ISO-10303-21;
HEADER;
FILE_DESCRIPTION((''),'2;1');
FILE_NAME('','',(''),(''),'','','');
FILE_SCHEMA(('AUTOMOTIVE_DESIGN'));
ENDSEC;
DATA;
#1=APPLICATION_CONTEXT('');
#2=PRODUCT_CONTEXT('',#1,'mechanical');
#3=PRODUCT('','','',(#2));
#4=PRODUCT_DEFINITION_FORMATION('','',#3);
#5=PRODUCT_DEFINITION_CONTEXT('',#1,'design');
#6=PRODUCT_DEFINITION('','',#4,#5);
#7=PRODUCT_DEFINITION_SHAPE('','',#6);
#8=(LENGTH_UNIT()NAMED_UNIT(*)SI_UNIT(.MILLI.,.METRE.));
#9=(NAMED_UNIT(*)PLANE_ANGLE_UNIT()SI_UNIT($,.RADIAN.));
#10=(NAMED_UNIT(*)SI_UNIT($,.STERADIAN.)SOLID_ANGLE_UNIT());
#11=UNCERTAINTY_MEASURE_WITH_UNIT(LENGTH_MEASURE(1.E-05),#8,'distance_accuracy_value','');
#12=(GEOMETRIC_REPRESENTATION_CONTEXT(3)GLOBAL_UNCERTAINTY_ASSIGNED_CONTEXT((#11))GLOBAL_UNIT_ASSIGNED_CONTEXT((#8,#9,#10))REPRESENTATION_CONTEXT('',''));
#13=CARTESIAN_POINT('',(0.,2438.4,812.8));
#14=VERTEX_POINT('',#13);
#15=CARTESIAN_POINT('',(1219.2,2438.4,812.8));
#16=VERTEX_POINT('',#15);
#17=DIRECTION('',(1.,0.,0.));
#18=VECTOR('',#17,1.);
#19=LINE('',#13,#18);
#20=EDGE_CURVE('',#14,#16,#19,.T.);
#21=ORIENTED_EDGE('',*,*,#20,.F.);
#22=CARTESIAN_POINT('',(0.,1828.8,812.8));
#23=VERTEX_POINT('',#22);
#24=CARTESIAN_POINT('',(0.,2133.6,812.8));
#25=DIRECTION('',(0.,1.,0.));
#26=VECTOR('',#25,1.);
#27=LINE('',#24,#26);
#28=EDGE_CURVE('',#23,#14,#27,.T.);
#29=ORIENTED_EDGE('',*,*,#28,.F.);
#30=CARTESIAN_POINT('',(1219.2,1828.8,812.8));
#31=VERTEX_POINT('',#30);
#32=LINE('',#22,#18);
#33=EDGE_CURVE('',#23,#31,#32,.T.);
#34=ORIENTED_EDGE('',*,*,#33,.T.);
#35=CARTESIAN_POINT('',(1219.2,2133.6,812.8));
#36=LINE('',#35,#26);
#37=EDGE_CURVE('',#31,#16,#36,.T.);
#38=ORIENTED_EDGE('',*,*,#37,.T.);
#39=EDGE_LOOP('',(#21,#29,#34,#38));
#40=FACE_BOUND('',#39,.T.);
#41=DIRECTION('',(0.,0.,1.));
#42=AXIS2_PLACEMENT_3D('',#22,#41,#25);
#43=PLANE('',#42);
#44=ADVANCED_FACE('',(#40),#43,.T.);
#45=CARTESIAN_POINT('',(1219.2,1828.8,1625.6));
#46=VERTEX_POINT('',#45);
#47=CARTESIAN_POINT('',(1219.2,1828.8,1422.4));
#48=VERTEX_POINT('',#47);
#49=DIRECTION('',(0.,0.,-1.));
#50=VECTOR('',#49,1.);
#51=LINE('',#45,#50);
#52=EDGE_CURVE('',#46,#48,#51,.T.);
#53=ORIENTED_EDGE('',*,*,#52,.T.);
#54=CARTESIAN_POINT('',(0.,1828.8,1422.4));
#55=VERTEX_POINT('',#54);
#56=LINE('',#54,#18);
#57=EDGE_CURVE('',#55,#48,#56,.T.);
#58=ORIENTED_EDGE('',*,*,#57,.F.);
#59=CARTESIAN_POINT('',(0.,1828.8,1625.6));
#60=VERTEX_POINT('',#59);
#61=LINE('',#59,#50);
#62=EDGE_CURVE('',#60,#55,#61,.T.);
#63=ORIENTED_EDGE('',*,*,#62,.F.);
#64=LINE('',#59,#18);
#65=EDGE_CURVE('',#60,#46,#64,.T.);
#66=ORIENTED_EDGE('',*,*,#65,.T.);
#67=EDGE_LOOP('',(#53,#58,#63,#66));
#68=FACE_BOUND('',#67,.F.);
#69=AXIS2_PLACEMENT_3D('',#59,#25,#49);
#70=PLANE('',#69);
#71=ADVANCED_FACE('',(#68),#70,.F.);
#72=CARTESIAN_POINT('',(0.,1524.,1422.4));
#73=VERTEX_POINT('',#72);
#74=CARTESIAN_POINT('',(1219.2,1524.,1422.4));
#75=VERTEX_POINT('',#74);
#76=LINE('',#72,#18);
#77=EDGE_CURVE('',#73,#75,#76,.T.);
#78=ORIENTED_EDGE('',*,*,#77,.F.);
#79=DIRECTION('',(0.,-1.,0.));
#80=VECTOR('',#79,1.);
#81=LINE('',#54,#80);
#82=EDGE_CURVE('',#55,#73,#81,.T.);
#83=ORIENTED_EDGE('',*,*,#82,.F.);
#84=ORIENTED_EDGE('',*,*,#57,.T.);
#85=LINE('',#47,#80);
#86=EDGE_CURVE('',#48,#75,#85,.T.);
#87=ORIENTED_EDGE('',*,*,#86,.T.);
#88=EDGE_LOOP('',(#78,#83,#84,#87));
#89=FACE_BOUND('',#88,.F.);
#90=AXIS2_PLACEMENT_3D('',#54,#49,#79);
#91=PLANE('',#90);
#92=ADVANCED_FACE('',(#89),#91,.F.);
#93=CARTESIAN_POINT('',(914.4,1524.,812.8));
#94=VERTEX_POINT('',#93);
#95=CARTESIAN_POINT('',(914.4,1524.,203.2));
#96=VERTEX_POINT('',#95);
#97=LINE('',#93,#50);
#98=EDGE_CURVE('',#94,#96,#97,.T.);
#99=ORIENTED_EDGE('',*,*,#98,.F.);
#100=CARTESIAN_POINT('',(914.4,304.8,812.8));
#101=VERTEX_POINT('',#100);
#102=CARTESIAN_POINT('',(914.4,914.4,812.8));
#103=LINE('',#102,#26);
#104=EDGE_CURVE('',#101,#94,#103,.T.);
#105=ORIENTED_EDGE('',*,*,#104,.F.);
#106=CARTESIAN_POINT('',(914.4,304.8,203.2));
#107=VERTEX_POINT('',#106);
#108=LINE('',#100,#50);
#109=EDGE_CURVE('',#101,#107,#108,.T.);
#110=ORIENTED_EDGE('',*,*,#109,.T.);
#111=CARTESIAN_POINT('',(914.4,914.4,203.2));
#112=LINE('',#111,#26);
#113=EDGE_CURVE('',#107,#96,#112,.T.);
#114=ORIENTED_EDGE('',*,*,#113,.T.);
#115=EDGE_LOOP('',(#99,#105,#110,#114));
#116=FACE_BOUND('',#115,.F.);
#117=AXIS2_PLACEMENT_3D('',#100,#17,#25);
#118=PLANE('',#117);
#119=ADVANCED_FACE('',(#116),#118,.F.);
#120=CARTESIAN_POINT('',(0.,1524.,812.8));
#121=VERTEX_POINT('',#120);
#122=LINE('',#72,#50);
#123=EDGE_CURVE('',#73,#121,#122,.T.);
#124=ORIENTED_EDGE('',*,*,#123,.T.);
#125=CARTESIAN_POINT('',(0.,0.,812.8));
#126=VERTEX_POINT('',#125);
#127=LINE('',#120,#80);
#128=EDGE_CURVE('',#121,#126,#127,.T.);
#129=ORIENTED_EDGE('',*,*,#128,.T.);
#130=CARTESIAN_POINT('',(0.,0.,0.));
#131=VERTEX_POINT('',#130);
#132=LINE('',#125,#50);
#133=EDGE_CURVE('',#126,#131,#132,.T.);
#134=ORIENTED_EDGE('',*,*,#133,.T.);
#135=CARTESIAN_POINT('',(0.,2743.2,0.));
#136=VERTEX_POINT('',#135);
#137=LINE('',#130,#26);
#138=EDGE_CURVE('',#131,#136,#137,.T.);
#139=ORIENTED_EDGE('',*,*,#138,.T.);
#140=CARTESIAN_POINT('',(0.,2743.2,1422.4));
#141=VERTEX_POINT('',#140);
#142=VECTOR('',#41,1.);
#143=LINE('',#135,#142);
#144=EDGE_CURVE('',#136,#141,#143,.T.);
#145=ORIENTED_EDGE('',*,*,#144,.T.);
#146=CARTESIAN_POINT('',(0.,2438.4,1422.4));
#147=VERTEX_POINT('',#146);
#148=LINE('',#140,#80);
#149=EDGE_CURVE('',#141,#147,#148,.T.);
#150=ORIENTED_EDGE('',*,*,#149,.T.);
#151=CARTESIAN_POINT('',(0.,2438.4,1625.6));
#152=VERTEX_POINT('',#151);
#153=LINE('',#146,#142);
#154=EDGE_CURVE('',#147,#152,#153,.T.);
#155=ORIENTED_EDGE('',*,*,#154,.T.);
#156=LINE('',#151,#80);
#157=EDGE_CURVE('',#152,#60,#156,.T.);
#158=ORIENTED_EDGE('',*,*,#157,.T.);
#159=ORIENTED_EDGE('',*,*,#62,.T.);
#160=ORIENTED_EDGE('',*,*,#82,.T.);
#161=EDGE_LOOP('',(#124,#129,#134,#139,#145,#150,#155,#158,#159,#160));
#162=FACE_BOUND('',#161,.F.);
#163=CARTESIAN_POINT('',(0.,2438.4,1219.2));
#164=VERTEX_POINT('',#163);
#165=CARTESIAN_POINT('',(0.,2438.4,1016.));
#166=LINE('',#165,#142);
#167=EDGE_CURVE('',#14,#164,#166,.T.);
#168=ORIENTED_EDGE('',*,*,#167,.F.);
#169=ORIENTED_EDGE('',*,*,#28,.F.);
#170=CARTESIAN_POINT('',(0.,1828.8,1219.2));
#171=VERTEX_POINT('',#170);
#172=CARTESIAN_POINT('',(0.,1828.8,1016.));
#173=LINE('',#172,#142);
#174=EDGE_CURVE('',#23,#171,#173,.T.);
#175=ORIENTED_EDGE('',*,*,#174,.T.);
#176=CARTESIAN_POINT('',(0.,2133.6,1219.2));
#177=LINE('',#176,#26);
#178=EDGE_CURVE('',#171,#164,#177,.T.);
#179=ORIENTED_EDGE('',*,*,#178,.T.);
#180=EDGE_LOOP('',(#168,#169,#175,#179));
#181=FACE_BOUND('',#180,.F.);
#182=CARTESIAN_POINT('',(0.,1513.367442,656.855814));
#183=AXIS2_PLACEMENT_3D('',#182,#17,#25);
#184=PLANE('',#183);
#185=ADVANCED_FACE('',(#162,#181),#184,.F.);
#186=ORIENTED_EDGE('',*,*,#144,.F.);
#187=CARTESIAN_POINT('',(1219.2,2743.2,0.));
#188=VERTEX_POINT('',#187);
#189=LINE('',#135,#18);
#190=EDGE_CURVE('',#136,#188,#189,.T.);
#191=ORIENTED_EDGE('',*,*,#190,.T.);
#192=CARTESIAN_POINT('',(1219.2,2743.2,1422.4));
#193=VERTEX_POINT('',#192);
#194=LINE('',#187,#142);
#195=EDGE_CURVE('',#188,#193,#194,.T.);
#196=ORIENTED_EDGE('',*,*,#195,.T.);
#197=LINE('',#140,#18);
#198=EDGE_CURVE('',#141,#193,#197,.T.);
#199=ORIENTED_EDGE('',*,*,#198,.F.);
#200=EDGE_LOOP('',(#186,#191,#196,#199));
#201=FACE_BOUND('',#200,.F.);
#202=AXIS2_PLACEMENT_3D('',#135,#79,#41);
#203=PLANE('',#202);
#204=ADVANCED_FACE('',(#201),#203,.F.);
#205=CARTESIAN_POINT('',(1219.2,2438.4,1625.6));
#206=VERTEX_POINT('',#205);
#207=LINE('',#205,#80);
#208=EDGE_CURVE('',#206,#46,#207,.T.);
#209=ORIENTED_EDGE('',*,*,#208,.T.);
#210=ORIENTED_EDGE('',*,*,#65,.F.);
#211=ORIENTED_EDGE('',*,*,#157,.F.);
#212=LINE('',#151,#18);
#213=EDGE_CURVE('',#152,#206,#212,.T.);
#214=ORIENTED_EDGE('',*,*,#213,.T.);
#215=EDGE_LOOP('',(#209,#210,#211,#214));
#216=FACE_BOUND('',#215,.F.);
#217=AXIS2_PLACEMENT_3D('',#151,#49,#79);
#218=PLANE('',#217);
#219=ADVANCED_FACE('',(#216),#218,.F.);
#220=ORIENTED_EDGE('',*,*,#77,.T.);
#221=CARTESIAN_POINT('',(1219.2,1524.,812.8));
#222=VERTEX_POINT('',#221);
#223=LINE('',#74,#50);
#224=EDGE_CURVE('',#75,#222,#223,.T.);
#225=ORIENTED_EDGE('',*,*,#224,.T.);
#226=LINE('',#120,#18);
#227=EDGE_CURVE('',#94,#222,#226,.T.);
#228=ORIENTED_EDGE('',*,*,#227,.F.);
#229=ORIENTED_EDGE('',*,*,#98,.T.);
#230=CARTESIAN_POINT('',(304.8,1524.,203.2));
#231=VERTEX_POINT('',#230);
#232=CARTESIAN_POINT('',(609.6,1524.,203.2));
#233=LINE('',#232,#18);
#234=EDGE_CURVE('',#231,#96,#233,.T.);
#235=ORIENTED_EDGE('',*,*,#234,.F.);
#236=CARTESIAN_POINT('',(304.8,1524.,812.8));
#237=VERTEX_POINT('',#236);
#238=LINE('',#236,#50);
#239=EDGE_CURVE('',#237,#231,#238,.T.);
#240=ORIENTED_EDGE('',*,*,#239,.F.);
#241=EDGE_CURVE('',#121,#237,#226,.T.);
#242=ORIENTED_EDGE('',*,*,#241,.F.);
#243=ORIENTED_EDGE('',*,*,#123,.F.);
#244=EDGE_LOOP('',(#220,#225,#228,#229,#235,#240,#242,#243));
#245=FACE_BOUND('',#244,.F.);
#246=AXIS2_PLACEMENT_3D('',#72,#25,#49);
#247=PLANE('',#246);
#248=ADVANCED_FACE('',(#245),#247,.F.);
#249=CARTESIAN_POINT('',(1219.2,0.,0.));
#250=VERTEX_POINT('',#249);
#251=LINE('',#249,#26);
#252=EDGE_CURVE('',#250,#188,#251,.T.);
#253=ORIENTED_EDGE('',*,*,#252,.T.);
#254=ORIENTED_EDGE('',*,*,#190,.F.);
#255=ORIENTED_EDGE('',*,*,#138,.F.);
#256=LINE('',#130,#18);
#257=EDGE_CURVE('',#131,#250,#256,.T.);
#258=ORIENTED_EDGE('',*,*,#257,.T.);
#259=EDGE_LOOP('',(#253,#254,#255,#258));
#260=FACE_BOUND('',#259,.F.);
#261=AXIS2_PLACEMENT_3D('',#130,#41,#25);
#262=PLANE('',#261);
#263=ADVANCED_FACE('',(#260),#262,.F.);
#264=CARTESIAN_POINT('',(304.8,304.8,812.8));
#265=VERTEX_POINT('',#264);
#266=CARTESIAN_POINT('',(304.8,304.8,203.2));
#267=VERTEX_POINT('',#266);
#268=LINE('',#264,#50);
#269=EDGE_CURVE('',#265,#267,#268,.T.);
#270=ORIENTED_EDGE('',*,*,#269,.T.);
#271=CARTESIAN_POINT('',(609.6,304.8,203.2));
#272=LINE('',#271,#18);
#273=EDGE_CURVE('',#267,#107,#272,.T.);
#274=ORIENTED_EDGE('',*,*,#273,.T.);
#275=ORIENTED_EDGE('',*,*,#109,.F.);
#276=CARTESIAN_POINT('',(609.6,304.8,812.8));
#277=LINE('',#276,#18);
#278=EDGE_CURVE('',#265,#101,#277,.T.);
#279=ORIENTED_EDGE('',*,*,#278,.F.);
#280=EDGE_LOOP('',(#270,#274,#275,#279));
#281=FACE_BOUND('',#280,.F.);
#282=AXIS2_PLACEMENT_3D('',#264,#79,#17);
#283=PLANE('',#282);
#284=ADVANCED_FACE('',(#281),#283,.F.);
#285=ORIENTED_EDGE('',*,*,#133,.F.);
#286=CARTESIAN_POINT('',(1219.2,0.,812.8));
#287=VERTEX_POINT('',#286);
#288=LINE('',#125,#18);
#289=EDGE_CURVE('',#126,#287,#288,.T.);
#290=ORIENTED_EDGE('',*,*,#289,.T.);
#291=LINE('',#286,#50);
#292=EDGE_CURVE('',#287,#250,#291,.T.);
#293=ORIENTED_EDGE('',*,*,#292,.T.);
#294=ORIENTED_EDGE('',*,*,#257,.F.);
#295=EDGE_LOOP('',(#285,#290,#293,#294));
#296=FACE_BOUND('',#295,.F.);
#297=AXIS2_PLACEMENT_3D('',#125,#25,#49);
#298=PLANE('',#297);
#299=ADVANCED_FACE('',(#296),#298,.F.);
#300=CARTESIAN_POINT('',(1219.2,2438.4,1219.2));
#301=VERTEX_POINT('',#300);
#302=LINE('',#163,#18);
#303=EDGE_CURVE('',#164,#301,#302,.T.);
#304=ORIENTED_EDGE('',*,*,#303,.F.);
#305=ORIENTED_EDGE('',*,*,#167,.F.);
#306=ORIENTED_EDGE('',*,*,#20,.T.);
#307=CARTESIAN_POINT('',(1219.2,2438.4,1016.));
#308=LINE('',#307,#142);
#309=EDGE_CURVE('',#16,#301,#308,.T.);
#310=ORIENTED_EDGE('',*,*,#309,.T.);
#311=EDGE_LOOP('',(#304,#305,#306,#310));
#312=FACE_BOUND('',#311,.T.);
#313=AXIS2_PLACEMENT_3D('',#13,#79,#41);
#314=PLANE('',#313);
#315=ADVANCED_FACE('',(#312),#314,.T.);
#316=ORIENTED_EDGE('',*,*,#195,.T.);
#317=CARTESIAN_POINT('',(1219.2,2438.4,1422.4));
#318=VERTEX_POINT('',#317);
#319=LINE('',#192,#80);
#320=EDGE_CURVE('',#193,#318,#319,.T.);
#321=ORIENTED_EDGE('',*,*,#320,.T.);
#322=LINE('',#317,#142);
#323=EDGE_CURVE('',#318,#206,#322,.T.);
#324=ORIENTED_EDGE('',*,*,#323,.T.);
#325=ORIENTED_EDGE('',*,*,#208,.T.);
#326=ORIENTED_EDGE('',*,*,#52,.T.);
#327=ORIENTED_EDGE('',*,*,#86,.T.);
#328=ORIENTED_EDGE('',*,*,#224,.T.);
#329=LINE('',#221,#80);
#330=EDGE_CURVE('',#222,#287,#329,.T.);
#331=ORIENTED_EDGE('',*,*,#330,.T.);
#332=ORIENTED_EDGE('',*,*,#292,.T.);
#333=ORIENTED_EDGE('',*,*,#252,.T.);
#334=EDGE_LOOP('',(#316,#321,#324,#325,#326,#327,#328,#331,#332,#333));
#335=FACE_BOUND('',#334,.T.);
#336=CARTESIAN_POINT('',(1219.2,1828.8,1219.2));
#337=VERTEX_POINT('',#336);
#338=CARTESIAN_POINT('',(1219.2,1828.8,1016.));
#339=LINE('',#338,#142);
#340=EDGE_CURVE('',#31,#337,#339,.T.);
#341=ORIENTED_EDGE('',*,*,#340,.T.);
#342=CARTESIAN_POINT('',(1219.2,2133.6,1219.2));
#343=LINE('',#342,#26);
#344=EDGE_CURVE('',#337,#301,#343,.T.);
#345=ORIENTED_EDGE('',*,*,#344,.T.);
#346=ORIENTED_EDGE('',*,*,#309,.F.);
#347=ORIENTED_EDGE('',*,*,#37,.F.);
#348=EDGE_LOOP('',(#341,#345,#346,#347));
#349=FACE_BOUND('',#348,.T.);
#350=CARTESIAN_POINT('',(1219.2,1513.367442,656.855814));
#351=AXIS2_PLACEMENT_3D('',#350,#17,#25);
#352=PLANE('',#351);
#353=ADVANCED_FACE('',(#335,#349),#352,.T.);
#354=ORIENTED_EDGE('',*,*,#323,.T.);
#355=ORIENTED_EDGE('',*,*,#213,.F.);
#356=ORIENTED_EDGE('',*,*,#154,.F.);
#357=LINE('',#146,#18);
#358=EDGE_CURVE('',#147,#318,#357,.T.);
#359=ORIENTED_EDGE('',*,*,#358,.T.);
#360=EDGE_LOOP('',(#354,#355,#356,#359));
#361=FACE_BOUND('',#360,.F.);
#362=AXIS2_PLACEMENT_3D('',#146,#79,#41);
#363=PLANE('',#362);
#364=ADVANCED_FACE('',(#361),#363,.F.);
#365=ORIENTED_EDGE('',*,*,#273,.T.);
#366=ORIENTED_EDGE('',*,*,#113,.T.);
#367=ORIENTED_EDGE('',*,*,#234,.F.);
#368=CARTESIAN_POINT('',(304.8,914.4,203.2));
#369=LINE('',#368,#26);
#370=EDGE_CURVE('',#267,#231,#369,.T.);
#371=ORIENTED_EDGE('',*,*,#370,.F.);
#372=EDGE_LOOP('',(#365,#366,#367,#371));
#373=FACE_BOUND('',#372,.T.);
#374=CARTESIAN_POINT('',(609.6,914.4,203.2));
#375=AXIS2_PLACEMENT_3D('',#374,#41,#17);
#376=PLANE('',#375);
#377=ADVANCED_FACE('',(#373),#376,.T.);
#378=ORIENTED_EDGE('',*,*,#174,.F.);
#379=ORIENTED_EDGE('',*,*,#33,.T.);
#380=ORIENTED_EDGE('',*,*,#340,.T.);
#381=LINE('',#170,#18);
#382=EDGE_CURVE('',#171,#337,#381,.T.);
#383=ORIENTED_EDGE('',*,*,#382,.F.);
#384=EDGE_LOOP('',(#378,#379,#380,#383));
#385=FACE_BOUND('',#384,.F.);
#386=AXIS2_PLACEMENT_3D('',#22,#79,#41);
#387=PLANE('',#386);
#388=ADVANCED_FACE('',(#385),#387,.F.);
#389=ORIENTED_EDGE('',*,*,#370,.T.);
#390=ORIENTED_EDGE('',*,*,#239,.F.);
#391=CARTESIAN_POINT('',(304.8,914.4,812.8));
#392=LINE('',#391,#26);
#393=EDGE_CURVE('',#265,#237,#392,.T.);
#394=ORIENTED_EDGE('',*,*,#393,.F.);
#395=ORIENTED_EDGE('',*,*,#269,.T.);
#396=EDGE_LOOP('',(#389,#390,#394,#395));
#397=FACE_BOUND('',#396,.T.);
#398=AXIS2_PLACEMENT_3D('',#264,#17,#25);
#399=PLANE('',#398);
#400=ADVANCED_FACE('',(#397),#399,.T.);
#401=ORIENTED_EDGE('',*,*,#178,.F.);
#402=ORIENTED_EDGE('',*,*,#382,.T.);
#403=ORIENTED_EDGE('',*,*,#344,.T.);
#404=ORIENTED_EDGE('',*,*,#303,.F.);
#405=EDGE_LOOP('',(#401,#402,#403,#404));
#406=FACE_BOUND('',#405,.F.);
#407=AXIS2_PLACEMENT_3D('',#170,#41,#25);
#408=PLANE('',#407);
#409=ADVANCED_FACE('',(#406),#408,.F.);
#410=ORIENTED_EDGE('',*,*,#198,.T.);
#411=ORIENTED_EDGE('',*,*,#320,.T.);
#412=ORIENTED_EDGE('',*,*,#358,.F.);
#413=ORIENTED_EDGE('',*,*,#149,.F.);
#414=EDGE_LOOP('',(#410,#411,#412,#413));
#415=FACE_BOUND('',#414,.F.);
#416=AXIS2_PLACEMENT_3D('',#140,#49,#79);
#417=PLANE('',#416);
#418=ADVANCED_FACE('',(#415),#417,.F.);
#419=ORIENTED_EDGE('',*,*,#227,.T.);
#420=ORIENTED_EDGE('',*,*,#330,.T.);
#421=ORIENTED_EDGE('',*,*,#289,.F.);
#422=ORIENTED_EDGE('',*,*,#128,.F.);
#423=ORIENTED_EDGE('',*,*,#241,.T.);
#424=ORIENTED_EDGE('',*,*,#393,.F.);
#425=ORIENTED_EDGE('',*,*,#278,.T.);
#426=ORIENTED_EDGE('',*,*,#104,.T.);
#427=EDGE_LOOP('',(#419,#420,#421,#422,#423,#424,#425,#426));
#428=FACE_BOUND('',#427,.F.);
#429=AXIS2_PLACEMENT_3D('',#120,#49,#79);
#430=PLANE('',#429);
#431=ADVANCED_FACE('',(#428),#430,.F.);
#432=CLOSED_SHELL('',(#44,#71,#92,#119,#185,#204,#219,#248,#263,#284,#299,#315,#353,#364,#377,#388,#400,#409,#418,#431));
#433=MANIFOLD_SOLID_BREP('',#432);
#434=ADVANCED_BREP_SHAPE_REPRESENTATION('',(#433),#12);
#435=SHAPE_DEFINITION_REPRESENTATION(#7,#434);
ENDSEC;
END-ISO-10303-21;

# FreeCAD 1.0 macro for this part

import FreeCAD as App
import Part
import Sketcher
Q = App.Units.Quantity

doc = App.newDocument("Part")
body = doc.addObject("PartDesign::Body", "Body")

# Sketch on YZ plane
sketch1 = doc.addObject("Sketcher::SketchObject", "Sketch")
body.addObject(sketch1)
sketch1.AttachmentSupport = (doc.YZ_Plane, [""])
sketch1.MapMode = "FlatFace"
sketch1.addGeometry([
    Part.LineSegment(App.Vector(0, 813, 0), App.Vector(0, 0, 0)),  # 0
    Part.LineSegment(App.Vector(0, 0, 0), App.Vector(2743, 0, 0)),  # 1
    Part.LineSegment(App.Vector(2743, 0, 0), App.Vector(2743, 1422, 0)),  # 2
    Part.LineSegment(App.Vector(2743, 1422, 0), App.Vector(2438, 1422, 0)),  # 3
    Part.LineSegment(App.Vector(2438, 1422, 0), App.Vector(2438, 1626, 0)),  # 4
    Part.LineSegment(App.Vector(2438, 1626, 0), App.Vector(1829, 1626, 0)),  # 5
    Part.LineSegment(App.Vector(1829, 1626, 0), App.Vector(1829, 1422, 0)),  # 6
    Part.LineSegment(App.Vector(1829, 1422, 0), App.Vector(1524, 1422, 0)),  # 7
    Part.LineSegment(App.Vector(1524, 1422, 0), App.Vector(1524, 813, 0)),  # 8
    Part.LineSegment(App.Vector(1524, 813, 0), App.Vector(0, 813, 0)),  # 9
    Part.LineSegment(App.Vector(2438, 813, 0), App.Vector(1829, 813, 0)),  # 10
    Part.LineSegment(App.Vector(1829, 813, 0), App.Vector(1829, 1219, 0)),  # 11
    Part.LineSegment(App.Vector(1829, 1219, 0), App.Vector(2438, 1219, 0)),  # 12
    Part.LineSegment(App.Vector(2438, 1219, 0), App.Vector(2438, 813, 0)),  # 13
], False)
sketch1.addConstraint([
    Sketcher.Constraint("Coincident", 0, 2, 1, 1),
    Sketcher.Constraint("Coincident", 1, 2, 2, 1),
    Sketcher.Constraint("Coincident", 2, 2, 3, 1),
    Sketcher.Constraint("Coincident", 3, 2, 4, 1),
    Sketcher.Constraint("Coincident", 4, 2, 5, 1),
    Sketcher.Constraint("Coincident", 5, 2, 6, 1),
    Sketcher.Constraint("Coincident", 6, 2, 7, 1),
    Sketcher.Constraint("Coincident", 7, 2, 8, 1),
    Sketcher.Constraint("Coincident", 8, 2, 9, 1),
    Sketcher.Constraint("Coincident", 9, 2, 0, 1),
    Sketcher.Constraint("Coincident", 10, 2, 11, 1),
    Sketcher.Constraint("Coincident", 11, 2, 12, 1),
    Sketcher.Constraint("Coincident", 12, 2, 13, 1),
    Sketcher.Constraint("Coincident", 13, 2, 10, 1),
    Sketcher.Constraint("Vertical", 0),
    Sketcher.Constraint("Horizontal", 1),
    Sketcher.Constraint("Vertical", 2),
    Sketcher.Constraint("Horizontal", 3),
    Sketcher.Constraint("Vertical", 4),
    Sketcher.Constraint("Horizontal", 5),
    Sketcher.Constraint("Vertical", 6),
    Sketcher.Constraint("Horizontal", 7),
    Sketcher.Constraint("Vertical", 8),
    Sketcher.Constraint("Horizontal", 9),
    Sketcher.Constraint("Horizontal", 10),
    Sketcher.Constraint("Vertical", 11),
    Sketcher.Constraint("Horizontal", 12),
    Sketcher.Constraint("Vertical", 13),
    Sketcher.Constraint("Coincident", 0, 2, -1, 1),
    Sketcher.Constraint("Horizontal", 3, 2, 6, 2),
    Sketcher.Constraint("Horizontal", 9, 2, 10, 2),
    Sketcher.Constraint("Vertical", 6, 2, 10, 2),
    Sketcher.Constraint("Vertical", 4, 2, 12, 2),
    Sketcher.Constraint("Equal", 3, 7),
    Sketcher.Constraint("Equal", 12, 8),
    Sketcher.Constraint("DistanceX", 1, 1, 1, 2, Q("108 in")),
    Sketcher.Constraint("DistanceX", 3, 2, 3, 1, Q("12 in")),
    Sketcher.Constraint("DistanceX", 5, 2, 5, 1, Q("24 in")),
    Sketcher.Constraint("DistanceY", 0, 2, 0, 1, Q("32 in")),
    Sketcher.Constraint("DistanceY", 4, 1, 4, 2, Q("8 in")),
    Sketcher.Constraint("DistanceY", 11, 1, 11, 2, Q("16 in")),
])
pad1 = doc.addObject("PartDesign::Pad", "Pad")
body.addObject(pad1)
pad1.Profile = sketch1
pad1.Length = Q("48 in")

# Sketch on XY plane
sketch2 = doc.addObject("Sketcher::SketchObject", "Sketch001")
body.addObject(sketch2)
sketch2.AttachmentSupport = (doc.XY_Plane, [""])
sketch2.MapMode = "FlatFace"
sketch2.addGeometry([
    Part.LineSegment(App.Vector(305, 1422, 0), App.Vector(305, 203, 0)),
    Part.LineSegment(App.Vector(305, 203, 0), App.Vector(914, 203, 0)),
    Part.LineSegment(App.Vector(914, 203, 0), App.Vector(914, 1422, 0)),
    Part.LineSegment(App.Vector(914, 1422, 0), App.Vector(305, 1422, 0)),
], False)
sketch2.addConstraint([
    Sketcher.Constraint("Coincident", 0, 2, 1, 1),
    Sketcher.Constraint("Coincident", 1, 2, 2, 1),
    Sketcher.Constraint("Coincident", 2, 2, 3, 1),
    Sketcher.Constraint("Coincident", 3, 2, 0, 1),
    Sketcher.Constraint("Vertical", 0),
    Sketcher.Constraint("Horizontal", 1),
    Sketcher.Constraint("Vertical", 2),
    Sketcher.Constraint("Horizontal", 3),
    Sketcher.Constraint("DistanceX", 1, 1, 1, 2, Q("24 in")),
    Sketcher.Constraint("DistanceY", 0, 2, 0, 1, Q("48 in")),
    Sketcher.Constraint("DistanceX", -1, 1, 0, 2, Q("12 in")),
    Sketcher.Constraint("DistanceY", -1, 1, 0, 2, Q("8 in")),
])
pad2 = doc.addObject("PartDesign::Pad", "Pad001")
body.addObject(pad2)
pad2.Profile = sketch2
pad2.Length = Q("24 in")

# Sketch on XY plane
sketch3 = doc.addObject("Sketcher::SketchObject", "Sketch002")
body.addObject(sketch3)
sketch3.AttachmentSupport = (doc.XY_Plane, [""])
sketch3.MapMode = "FlatFace"
sketch3.AttachmentOffset = App.Placement(App.Vector(0, 0, 32 * 25.4), App.Rotation())
sketch3.addGeometry([
    Part.LineSegment(App.Vector(305, 1524, 0), App.Vector(305, 305, 0)),
    Part.LineSegment(App.Vector(305, 305, 0), App.Vector(914, 305, 0)),
    Part.LineSegment(App.Vector(914, 305, 0), App.Vector(914, 1524, 0)),
    Part.LineSegment(App.Vector(914, 1524, 0), App.Vector(305, 1524, 0)),
], False)
sketch3.addConstraint([
    Sketcher.Constraint("Coincident", 0, 2, 1, 1),
    Sketcher.Constraint("Coincident", 1, 2, 2, 1),
    Sketcher.Constraint("Coincident", 2, 2, 3, 1),
    Sketcher.Constraint("Coincident", 3, 2, 0, 1),
    Sketcher.Constraint("Vertical", 0),
    Sketcher.Constraint("Horizontal", 1),
    Sketcher.Constraint("Vertical", 2),
    Sketcher.Constraint("Horizontal", 3),
    Sketcher.Constraint("DistanceX", 1, 1, 1, 2, Q("24 in")),
    Sketcher.Constraint("DistanceY", 0, 2, 0, 1, Q("48 in")),
    Sketcher.Constraint("DistanceX", -1, 1, 0, 2, Q("12 in")),
    Sketcher.Constraint("DistanceY", -1, 1, 0, 2, Q("12 in")),
])
pocket1 = doc.addObject("PartDesign::Pocket", "Pocket")
body.addObject(pocket1)
pocket1.Profile = sketch3
pocket1.Length = Q("24 in")

doc.recompute()
